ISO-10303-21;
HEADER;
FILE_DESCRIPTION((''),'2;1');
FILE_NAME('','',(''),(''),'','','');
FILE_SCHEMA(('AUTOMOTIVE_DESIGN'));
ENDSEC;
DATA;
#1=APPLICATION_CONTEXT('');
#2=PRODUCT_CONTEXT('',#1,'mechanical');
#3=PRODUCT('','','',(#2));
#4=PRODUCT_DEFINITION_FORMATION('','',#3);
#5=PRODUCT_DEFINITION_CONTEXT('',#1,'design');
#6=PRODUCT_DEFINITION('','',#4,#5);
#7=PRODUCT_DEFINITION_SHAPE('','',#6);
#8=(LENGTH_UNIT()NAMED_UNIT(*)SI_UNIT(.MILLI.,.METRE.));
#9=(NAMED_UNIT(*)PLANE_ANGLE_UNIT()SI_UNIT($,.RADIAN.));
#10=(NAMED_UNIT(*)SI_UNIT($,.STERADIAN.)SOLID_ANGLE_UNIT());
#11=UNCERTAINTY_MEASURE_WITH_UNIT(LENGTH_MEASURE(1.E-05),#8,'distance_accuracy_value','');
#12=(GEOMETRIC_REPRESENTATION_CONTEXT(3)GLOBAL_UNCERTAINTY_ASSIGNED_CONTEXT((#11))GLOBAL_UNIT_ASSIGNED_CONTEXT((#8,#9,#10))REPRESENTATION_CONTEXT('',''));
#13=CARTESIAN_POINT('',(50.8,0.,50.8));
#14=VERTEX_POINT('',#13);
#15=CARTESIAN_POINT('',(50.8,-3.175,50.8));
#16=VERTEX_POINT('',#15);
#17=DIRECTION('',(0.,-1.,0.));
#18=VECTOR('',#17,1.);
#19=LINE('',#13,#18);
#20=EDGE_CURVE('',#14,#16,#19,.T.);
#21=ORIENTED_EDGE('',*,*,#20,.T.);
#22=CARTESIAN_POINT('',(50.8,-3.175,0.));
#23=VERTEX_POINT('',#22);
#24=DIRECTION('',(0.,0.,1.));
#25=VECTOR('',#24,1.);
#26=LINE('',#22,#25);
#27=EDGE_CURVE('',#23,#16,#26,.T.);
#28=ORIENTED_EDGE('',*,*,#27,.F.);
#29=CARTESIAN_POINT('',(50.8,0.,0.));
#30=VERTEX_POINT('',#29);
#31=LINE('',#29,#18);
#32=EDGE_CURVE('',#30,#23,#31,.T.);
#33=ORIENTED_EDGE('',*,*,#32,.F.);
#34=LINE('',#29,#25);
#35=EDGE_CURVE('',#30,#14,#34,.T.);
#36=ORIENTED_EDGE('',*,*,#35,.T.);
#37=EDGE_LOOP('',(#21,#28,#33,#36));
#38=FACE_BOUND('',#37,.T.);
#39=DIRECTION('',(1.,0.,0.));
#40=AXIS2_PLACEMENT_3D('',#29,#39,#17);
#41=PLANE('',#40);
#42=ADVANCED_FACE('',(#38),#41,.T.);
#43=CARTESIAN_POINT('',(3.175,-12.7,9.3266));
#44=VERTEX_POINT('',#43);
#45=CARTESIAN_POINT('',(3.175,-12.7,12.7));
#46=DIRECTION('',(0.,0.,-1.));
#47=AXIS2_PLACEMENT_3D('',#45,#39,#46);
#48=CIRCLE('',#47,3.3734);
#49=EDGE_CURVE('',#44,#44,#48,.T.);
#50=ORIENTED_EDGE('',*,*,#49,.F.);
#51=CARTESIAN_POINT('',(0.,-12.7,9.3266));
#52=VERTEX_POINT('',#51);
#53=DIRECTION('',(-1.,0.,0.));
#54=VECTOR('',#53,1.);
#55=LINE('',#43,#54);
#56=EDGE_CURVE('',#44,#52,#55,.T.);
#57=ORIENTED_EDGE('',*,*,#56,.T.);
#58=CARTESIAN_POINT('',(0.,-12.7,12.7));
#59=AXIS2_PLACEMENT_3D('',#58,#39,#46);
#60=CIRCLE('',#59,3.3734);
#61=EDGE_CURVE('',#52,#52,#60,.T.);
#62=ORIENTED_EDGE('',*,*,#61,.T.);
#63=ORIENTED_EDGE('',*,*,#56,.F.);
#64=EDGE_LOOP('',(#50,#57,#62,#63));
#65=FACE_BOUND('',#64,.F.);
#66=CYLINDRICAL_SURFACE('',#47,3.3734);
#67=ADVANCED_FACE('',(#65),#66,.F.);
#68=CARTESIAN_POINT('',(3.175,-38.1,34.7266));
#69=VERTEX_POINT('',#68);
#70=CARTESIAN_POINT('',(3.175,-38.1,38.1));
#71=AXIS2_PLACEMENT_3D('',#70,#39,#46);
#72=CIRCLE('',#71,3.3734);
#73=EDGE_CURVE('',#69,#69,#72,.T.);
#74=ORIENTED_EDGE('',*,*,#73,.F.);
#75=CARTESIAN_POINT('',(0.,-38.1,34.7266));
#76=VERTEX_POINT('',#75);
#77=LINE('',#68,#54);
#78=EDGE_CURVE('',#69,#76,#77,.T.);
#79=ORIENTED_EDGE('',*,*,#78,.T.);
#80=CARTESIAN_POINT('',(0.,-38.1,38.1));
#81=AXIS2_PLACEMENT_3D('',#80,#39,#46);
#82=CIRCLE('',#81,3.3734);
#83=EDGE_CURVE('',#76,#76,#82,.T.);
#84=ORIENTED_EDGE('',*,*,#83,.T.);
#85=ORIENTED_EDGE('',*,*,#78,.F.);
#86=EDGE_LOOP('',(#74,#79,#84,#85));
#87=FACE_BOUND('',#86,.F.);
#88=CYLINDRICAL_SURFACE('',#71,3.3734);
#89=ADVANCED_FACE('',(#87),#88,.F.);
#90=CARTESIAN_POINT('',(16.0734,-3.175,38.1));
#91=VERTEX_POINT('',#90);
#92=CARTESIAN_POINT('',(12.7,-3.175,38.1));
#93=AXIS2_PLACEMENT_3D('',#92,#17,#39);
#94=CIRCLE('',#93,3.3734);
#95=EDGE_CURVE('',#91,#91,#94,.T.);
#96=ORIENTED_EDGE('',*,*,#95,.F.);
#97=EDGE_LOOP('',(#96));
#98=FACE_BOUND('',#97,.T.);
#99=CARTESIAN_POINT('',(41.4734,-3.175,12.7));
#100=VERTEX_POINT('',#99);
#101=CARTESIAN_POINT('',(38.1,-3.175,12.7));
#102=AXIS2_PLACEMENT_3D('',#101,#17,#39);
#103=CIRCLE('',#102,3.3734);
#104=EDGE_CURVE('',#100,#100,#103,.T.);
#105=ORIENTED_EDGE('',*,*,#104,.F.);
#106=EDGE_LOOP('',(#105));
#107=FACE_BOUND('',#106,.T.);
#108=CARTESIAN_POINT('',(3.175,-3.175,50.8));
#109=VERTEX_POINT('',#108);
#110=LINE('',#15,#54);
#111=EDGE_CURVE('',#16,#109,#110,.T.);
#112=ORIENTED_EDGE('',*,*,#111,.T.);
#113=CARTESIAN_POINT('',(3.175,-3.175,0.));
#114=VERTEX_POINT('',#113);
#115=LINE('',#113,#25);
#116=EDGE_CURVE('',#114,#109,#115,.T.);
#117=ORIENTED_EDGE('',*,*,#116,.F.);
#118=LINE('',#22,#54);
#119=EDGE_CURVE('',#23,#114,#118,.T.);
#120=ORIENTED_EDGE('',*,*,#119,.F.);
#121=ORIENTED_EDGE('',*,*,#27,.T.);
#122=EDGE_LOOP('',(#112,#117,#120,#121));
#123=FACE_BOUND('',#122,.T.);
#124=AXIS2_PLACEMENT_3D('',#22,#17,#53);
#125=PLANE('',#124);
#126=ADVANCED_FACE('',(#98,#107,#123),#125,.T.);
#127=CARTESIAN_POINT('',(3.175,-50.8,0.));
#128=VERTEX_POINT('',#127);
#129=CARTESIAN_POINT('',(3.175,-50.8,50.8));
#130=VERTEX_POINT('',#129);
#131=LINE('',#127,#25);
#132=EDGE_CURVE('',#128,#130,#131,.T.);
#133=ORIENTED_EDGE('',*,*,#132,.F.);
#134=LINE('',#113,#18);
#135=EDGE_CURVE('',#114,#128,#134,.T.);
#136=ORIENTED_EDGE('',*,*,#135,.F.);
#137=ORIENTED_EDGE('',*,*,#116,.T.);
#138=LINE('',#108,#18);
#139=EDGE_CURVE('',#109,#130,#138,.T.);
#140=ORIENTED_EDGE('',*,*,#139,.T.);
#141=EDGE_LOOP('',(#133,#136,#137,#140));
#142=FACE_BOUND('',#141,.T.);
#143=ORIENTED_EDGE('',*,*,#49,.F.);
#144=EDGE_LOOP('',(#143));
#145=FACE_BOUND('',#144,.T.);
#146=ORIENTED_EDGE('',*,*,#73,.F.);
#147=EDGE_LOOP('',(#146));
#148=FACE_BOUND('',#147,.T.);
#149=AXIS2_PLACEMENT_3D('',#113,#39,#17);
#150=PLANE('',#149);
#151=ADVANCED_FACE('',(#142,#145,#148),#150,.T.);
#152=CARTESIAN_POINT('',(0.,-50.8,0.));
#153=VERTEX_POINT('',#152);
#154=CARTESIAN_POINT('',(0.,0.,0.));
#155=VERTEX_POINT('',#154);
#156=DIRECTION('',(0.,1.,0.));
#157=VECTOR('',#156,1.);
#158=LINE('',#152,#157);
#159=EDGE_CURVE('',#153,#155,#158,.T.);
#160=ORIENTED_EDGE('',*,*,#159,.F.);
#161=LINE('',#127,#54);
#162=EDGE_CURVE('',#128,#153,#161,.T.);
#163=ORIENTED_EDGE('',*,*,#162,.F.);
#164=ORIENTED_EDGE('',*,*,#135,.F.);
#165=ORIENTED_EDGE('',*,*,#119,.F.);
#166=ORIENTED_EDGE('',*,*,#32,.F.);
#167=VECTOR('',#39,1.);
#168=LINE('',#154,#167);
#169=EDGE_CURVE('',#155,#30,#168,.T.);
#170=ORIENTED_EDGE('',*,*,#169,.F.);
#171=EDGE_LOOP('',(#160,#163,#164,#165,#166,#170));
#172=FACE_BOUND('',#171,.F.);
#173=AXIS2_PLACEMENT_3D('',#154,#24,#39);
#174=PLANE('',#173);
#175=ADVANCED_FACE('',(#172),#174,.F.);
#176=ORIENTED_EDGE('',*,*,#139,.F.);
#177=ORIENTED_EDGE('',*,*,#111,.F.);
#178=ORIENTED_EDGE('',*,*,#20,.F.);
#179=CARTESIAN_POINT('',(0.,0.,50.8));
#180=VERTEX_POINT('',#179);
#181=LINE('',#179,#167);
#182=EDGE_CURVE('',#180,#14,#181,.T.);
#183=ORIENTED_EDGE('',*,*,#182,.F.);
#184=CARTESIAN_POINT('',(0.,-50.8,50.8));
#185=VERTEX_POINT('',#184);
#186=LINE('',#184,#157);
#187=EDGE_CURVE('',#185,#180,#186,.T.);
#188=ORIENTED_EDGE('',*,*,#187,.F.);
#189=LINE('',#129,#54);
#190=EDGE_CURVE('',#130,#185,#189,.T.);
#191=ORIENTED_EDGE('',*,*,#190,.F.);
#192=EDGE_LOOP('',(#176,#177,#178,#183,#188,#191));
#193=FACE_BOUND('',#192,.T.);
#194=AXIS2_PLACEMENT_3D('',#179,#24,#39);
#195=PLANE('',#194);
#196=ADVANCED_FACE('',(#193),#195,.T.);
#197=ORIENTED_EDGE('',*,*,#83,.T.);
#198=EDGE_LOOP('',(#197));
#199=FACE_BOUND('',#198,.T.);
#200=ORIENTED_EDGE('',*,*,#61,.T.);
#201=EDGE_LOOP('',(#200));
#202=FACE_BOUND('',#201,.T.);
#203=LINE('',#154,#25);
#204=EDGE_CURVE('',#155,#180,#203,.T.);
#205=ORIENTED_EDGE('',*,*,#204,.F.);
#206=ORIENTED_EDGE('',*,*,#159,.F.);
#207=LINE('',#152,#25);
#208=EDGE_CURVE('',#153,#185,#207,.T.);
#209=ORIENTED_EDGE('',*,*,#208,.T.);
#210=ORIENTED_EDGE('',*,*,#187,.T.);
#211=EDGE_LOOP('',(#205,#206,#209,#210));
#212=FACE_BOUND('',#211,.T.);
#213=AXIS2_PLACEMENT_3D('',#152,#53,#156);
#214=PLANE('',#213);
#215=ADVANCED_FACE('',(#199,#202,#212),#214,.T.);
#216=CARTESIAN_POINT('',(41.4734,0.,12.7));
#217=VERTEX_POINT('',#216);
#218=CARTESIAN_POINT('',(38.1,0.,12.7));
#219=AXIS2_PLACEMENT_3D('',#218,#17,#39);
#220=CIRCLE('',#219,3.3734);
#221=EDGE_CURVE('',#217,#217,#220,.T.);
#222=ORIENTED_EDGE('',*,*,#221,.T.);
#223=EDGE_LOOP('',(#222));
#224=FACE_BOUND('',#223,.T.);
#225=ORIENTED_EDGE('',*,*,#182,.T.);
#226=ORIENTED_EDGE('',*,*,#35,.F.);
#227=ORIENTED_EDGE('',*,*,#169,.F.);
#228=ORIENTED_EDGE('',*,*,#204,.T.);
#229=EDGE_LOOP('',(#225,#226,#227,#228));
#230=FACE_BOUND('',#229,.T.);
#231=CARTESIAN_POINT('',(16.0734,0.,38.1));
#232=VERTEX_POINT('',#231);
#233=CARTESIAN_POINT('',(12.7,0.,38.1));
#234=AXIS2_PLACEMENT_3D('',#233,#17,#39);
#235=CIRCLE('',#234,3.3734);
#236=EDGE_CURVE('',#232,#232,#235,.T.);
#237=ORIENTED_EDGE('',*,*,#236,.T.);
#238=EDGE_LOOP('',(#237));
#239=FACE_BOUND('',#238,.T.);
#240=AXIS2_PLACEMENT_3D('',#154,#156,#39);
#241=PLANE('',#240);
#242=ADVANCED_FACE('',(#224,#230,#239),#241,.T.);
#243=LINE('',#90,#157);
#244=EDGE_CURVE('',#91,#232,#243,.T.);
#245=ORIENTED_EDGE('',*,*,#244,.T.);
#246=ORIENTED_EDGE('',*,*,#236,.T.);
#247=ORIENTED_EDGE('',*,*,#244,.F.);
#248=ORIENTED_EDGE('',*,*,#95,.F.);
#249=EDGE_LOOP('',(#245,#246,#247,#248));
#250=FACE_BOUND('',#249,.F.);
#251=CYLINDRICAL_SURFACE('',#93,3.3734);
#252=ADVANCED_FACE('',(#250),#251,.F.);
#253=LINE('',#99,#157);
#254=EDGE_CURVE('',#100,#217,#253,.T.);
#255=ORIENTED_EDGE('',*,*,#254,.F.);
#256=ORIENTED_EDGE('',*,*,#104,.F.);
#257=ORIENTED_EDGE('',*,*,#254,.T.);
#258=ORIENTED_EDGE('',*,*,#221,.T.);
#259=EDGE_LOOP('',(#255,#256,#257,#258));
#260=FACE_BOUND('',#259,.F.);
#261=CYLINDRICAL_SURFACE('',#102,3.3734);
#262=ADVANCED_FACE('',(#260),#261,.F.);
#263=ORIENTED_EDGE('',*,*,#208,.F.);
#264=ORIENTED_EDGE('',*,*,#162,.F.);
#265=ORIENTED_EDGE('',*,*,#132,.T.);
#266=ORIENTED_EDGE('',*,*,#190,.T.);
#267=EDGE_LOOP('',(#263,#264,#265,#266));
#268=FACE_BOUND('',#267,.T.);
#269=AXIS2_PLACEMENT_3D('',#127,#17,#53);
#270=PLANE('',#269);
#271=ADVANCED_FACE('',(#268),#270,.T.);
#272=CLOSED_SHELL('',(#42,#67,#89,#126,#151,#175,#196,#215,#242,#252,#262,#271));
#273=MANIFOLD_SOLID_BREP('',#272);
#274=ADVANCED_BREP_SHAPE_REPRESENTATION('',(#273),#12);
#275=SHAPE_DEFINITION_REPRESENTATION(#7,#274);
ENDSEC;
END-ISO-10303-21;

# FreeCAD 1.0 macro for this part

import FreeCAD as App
import Part
import Sketcher

V = App.Vector
Q = App.Units.Quantity

doc = App.newDocument("Part")
body = doc.addObject("PartDesign::Body", "Body")

# Sketch on XY plane
sketch1 = body.newObject("Sketcher::SketchObject", "Sketch")
sketch1.AttachmentSupport = (doc.getObject("XY_Plane"), [""])
sketch1.MapMode = "FlatFace"
sketch1.addGeometry([
    Part.LineSegment(V(50.8, 0, 0), V(0, 0, 0)),  # 0
    Part.LineSegment(V(0, 0, 0), V(0, -50.8, 0)),  # 1
    Part.LineSegment(V(0, -50.8, 0), V(3.2, -50.8, 0)),  # 2
    Part.LineSegment(V(3.2, -50.8, 0), V(3.2, -3.2, 0)),  # 3
    Part.LineSegment(V(3.2, -3.2, 0), V(50.8, -3.2, 0)),  # 4
    Part.LineSegment(V(50.8, -3.2, 0), V(50.8, 0, 0)),  # 5
], False)
sketch1.addConstraint([
    Sketcher.Constraint("Coincident", 0, 2, 1, 1),
    Sketcher.Constraint("Coincident", 1, 2, 2, 1),
    Sketcher.Constraint("Coincident", 2, 2, 3, 1),
    Sketcher.Constraint("Coincident", 3, 2, 4, 1),
    Sketcher.Constraint("Coincident", 4, 2, 5, 1),
    Sketcher.Constraint("Coincident", 5, 2, 0, 1),
    Sketcher.Constraint("Horizontal", 0),
    Sketcher.Constraint("Vertical", 1),
    Sketcher.Constraint("Horizontal", 2),
    Sketcher.Constraint("Vertical", 3),
    Sketcher.Constraint("Horizontal", 4),
    Sketcher.Constraint("Vertical", 5),
    Sketcher.Constraint("Coincident", 0, 2, -1, 1),
    Sketcher.Constraint("Equal", 0, 1),
    Sketcher.Constraint("Equal", 4, 3),
    Sketcher.Constraint("DistanceX", 0, 2, 0, 1, Q("2 in")),
    Sketcher.Constraint("DistanceX", 2, 1, 2, 2, Q("0.125 in")),
])
pad1 = body.newObject("PartDesign::Pad", "Pad")
pad1.Profile = sketch1
pad1.Length = Q("2 in")

# Sketch on XZ plane
sketch2 = body.newObject("Sketcher::SketchObject", "Sketch001")
sketch2.AttachmentSupport = (doc.getObject("XZ_Plane"), [""])
sketch2.MapMode = "FlatFace"
sketch2.AttachmentOffset = App.Placement(V(0, 0, 0.125 * 25.4), App.Rotation())
sketch2.addGeometry([
    Part.Circle(V(12.7, 38.1, 0), V(0, 0, 1), 3.4),
    Part.Circle(V(38.1, 12.7, 0), V(0, 0, 1), 3.4),
], False)
sketch2.addConstraint([
    Sketcher.Constraint("Equal", 0, 1),
    Sketcher.Constraint("Diameter", 0, Q("0.265622 in")),
    Sketcher.Constraint("DistanceX", -1, 1, 0, 3, Q("0.5 in")),
    Sketcher.Constraint("DistanceY", -1, 1, 1, 3, Q("0.5 in")),
    Sketcher.Constraint("DistanceX", 0, 3, 1, 3, Q("1 in")),
    Sketcher.Constraint("DistanceY", 1, 3, 0, 3, Q("1 in")),
])
pocket1 = body.newObject("PartDesign::Pocket", "Pocket")
pocket1.Profile = sketch2
pocket1.Length = Q("0.125 in")

# Sketch on YZ plane
sketch3 = body.newObject("Sketcher::SketchObject", "Sketch002")
sketch3.AttachmentSupport = (doc.getObject("YZ_Plane"), [""])
sketch3.MapMode = "FlatFace"
sketch3.AttachmentOffset = App.Placement(V(0, 0, 0.125 * 25.4), App.Rotation())
sketch3.addGeometry([
    Part.Circle(V(-38.1, 38.1, 0), V(0, 0, 1), 3.4),
    Part.Circle(V(-12.7, 12.7, 0), V(0, 0, 1), 3.4),
], False)
sketch3.addConstraint([
    Sketcher.Constraint("Equal", 0, 1),
    Sketcher.Constraint("Diameter", 0, Q("0.265622 in")),
    Sketcher.Constraint("DistanceX", 0, 3, 1, 3, Q("1 in")),
    Sketcher.Constraint("DistanceY", 1, 3, 0, 3, Q("1 in")),
    Sketcher.Constraint("DistanceX", 0, 3, -1, 1, Q("1.5 in")),
    Sketcher.Constraint("DistanceY", -1, 1, 0, 3, Q("1.5 in")),
])
pocket2 = body.newObject("PartDesign::Pocket", "Pocket001")
pocket2.Profile = sketch3
pocket2.Length = Q("0.125 in")

doc.recompute()
